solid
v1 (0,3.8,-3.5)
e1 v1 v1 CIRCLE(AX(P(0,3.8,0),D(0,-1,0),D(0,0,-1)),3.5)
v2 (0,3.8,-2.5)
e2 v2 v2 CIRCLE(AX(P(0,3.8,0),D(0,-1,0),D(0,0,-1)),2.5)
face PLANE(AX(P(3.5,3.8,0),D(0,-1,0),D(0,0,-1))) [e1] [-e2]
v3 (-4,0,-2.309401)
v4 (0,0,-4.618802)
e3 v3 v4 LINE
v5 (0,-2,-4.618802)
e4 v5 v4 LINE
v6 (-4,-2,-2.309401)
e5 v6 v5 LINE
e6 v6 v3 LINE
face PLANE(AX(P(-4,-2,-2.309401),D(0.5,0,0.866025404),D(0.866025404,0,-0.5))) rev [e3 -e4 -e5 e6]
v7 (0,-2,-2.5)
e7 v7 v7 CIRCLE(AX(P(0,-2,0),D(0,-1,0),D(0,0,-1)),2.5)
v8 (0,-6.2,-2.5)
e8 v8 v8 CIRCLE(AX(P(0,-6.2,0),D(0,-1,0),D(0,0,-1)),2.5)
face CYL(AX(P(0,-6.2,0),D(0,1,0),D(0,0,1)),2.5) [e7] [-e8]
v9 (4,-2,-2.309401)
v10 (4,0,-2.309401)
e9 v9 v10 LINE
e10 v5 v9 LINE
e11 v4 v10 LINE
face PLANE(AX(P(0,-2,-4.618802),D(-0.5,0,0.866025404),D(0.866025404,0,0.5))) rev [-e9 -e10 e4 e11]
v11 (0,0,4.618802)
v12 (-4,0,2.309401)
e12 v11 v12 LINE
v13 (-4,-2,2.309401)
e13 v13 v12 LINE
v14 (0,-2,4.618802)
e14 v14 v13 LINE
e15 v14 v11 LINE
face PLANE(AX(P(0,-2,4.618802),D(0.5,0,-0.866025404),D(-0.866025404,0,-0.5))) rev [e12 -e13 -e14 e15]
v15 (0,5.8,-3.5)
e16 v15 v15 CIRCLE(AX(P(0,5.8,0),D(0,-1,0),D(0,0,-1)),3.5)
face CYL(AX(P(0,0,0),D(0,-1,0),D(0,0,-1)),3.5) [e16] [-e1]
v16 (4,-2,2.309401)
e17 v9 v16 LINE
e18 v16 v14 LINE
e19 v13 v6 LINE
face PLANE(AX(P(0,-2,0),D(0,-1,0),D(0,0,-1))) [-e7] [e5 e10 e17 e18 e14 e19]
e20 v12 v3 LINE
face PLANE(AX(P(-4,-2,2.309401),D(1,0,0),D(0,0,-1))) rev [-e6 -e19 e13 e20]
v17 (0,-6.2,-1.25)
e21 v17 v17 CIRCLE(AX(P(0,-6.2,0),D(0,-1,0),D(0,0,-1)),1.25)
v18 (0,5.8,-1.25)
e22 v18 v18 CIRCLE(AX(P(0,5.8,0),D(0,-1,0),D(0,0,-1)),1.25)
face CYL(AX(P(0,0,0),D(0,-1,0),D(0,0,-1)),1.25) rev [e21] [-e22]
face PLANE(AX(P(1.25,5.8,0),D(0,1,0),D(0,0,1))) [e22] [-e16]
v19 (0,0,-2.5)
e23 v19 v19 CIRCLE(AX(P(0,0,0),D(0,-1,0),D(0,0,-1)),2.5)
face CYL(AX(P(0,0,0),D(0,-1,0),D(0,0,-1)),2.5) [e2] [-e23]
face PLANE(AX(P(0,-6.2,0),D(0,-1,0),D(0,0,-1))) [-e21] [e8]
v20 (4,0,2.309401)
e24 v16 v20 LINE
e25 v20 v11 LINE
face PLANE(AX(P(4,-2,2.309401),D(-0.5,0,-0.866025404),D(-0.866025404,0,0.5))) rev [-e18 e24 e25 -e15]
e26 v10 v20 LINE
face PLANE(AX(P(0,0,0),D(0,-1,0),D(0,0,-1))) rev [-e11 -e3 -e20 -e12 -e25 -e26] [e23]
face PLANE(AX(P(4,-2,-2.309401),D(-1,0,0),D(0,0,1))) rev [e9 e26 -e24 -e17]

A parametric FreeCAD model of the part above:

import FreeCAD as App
import Part
import Sketcher

V = App.Vector
Q = App.Units.Quantity


def add_polygon(sketch, points):
    """Adds a closed chain of lines whose ends are joined by coincident constraints."""
    first, n = sketch.GeometryCount, len(points)
    for a, b in zip(points, points[1:] + points[:1]):
        sketch.addGeometry(Part.LineSegment(App.Vector(*a, 0), App.Vector(*b, 0)), False)
    for i in range(n):
        sketch.addConstraint(Sketcher.Constraint("Coincident", first + i, 2, first + (i + 1) % n, 1))

doc = App.newDocument("Part")
body = doc.addObject("PartDesign::Body", "Body")

sketch1 = doc.addObject("Sketcher::SketchObject", "Sketch")
body.addObject(sketch1)
sketch1.AttachmentSupport = (doc.XY_Plane, [""])
sketch1.MapMode = "FlatFace"
add_polygon(sketch1, [(1.25, 5.8), (1.25, 0), (2.5, 0), (2.5, 3.8), (3.5, 3.8), (3.5, 5.8)])
sketch1.addConstraint(Sketcher.Constraint("Vertical", 0))
sketch1.addConstraint(Sketcher.Constraint("Horizontal", 1))
sketch1.addConstraint(Sketcher.Constraint("Vertical", 2))
sketch1.addConstraint(Sketcher.Constraint("Horizontal", 3))
sketch1.addConstraint(Sketcher.Constraint("Vertical", 4))
sketch1.addConstraint(Sketcher.Constraint("Horizontal", 5))
sketch1.addConstraint(Sketcher.Constraint("PointOnObject", 0, 2, -1))
sketch1.addConstraint(Sketcher.Constraint("DistanceX", 3, 1, 3, 2, Q("1 mm")))
sketch1.addConstraint(Sketcher.Constraint("DistanceY", 4, 1, 4, 2, Q("2 mm")))
sketch1.addConstraint(Sketcher.Constraint("DistanceY", 0, 2, 0, 1, Q("5.8 mm")))
sketch1.addConstraint(Sketcher.Constraint("DistanceX", 1, 1, 1, 2, Q("1.25 mm")))
sketch1.addConstraint(Sketcher.Constraint("DistanceX", -1, 1, 1, 2, Q("2.5 mm")))
revolution = doc.addObject("PartDesign::Revolution", "Revolution")
body.addObject(revolution)
revolution.Profile = sketch1
revolution.ReferenceAxis = (sketch1, ["V_Axis"])
revolution.Angle = 360

sketch2 = doc.addObject("Sketcher::SketchObject", "Sketch001")
body.addObject(sketch2)
sketch2.AttachmentSupport = (doc.XZ_Plane, [""])
sketch2.MapMode = "FlatFace"
add_polygon(sketch2, [(4, 2.309401), (0, 4.618802), (-4, 2.309401), (-4, -2.309401), (0, -4.618802), (4, -2.309401)])
sketch2.addGeometry(Part.Circle(V(0, 0, 0), V(0, 0, 1), 1.25), False)
sketch2.addConstraint(Sketcher.Constraint("Vertical", 2))
sketch2.addConstraint(Sketcher.Constraint("Vertical", 5))
sketch2.addConstraint(Sketcher.Constraint("Coincident", 6, 3, -1, 1))
sketch2.addConstraint(Sketcher.Constraint("Symmetric", 0, 2, 3, 2, -1, 1))
sketch2.addConstraint(Sketcher.Constraint("Symmetric", 1, 2, 4, 2, -1, 1))
sketch2.addConstraint(Sketcher.Constraint("PointOnObject", 0, 2, -2))
sketch2.addConstraint(Sketcher.Constraint("Parallel", 0, 3))
sketch2.addConstraint(Sketcher.Constraint("Horizontal", 2, 2, 4, 2))
sketch2.addConstraint(Sketcher.Constraint("Diameter", 6, Q("2.5 mm")))
sketch2.addConstraint(Sketcher.Constraint("Angle", 0, Q("150 deg")))
sketch2.addConstraint(Sketcher.Constraint("DistanceX", 1, 2, -1, 1, Q("4 mm")))
sketch2.addConstraint(Sketcher.Constraint("DistanceY", -1, 1, 1, 2, Q("2.309401 mm")))
pad1 = doc.addObject("PartDesign::Pad", "Pad")
body.addObject(pad1)
pad1.Profile = sketch2
pad1.Length = 2

sketch3 = doc.addObject("Sketcher::SketchObject", "Sketch002")
body.addObject(sketch3)
sketch3.AttachmentSupport = (doc.XZ_Plane, [""])
sketch3.MapMode = "FlatFace"
sketch3.AttachmentOffset = App.Placement(V(0, 0, 2), App.Rotation())
sketch3.addGeometry(Part.Circle(V(0, 0, 0), V(0, 0, 1), 2.5), False)
sketch3.addGeometry(Part.Circle(V(0, 0, 0), V(0, 0, 1), 1.25), False)
sketch3.addConstraint(Sketcher.Constraint("Coincident", 0, 3, -1, 1))
sketch3.addConstraint(Sketcher.Constraint("Coincident", 1, 3, -1, 1))
sketch3.addConstraint(Sketcher.Constraint("Diameter", 0, Q("5 mm")))
sketch3.addConstraint(Sketcher.Constraint("Diameter", 1, Q("2.5 mm")))
pad2 = doc.addObject("PartDesign::Pad", "Pad001")
body.addObject(pad2)
pad2.Profile = sketch3
pad2.Length = 4.2

doc.recompute()
